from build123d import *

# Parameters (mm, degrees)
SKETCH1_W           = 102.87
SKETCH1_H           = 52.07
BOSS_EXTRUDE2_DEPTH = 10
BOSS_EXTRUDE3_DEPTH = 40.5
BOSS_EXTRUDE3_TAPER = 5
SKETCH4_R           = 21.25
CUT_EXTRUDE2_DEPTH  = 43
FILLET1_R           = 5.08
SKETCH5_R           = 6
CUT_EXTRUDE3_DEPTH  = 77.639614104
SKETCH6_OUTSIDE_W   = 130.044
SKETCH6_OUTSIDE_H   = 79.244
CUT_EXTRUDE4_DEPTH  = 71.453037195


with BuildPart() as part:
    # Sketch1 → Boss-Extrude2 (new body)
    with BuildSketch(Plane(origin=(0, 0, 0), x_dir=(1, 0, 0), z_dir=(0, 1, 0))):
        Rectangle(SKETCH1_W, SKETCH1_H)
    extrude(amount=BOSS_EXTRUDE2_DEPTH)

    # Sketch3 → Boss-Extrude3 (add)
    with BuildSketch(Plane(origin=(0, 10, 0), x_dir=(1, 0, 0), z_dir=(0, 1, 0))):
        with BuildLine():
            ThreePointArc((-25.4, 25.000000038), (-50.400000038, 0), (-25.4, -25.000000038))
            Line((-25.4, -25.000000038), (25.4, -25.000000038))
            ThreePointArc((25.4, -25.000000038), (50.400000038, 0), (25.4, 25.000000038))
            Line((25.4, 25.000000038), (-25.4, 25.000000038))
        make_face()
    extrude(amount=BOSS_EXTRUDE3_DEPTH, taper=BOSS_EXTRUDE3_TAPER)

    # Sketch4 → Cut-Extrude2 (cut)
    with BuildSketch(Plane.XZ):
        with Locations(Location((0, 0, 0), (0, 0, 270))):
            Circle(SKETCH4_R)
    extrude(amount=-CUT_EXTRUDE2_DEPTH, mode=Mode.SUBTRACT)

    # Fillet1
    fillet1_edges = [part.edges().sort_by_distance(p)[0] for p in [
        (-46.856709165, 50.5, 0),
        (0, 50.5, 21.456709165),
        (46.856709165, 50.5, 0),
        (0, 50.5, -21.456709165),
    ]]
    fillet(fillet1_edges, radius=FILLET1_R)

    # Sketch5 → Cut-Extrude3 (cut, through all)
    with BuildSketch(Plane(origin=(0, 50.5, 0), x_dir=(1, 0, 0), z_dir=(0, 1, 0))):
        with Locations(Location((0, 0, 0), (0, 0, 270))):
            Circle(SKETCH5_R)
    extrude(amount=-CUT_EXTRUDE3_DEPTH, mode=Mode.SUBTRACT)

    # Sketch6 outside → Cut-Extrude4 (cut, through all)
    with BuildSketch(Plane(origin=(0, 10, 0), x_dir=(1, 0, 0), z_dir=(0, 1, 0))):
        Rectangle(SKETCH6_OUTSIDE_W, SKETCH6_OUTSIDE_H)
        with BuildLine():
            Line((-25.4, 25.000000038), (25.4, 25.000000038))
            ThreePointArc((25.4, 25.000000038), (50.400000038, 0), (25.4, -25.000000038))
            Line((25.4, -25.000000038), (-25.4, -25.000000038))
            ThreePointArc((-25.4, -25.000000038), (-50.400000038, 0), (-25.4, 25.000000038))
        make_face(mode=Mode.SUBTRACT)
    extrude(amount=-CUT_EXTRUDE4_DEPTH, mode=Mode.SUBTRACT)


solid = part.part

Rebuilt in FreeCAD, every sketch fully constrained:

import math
import FreeCAD as App
import Part
import Sketcher
from FreeCAD import Vector


def edges_at(feature, points):
    """Names of the edges that pass closest to the given points."""
    edges = feature.Shape.Edges
    near = lambda p: min(range(len(edges)), key=lambda i: edges[i].distToShape(Part.Vertex(*p))[0])
    return sorted({f"Edge{near(p) + 1}" for p in points})

doc = App.newDocument("Part")
body = doc.addObject("PartDesign::Body", "Body")

sketch1 = body.newObject("Sketcher::SketchObject", "Sketch")
sketch1.AttachmentSupport = (doc.getObject("XZ_Plane"), [""])
sketch1.MapMode = "FlatFace"
sketch1.addGeometry([
    Part.LineSegment(Vector(-51, -26, 0), Vector(-51, 26, 0)),
    Part.LineSegment(Vector(-51, 26, 0), Vector(51, 26, 0)),
    Part.LineSegment(Vector(51, 26, 0), Vector(51, -26, 0)),
    Part.LineSegment(Vector(51, -26, 0), Vector(-51, -26, 0)),
], False)
sketch1.addConstraint([
    Sketcher.Constraint("Coincident", 0, 2, 1, 1),
    Sketcher.Constraint("Coincident", 1, 2, 2, 1),
    Sketcher.Constraint("Coincident", 2, 2, 3, 1),
    Sketcher.Constraint("Coincident", 3, 2, 0, 1),
    Sketcher.Constraint("Vertical", 0),
    Sketcher.Constraint("Horizontal", 1),
    Sketcher.Constraint("Vertical", 2),
    Sketcher.Constraint("Horizontal", 3),
    Sketcher.Constraint("Symmetric", 0, 2, 2, 2, -1, 1),
    Sketcher.Constraint("DistanceX", 1, 1, 1, 2, 102.87),
    Sketcher.Constraint("DistanceY", 0, 1, 0, 2, 52.07),
])
pad1 = body.newObject("PartDesign::Pad", "Pad")
pad1.Profile = sketch1
pad1.Length = 10
pad1.Reversed = True

sketch2 = body.newObject("Sketcher::SketchObject", "Sketch001")
sketch2.AttachmentSupport = (doc.getObject("XZ_Plane"), [""])
sketch2.MapMode = "FlatFace"
sketch2.AttachmentOffset = App.Placement(Vector(0, 0, -10), App.Rotation())
sketch2.addGeometry([
    Part.ArcOfCircle(Part.Circle(Vector(-25, 0, 0), Vector(0, 0, 1), 25), math.radians(90), math.radians(270)),
    Part.LineSegment(Vector(-25, 25, 0), Vector(25, 25, 0)),
    Part.ArcOfCircle(Part.Circle(Vector(25, 0, 0), Vector(0, 0, 1), 25), math.radians(-90), math.radians(90)),
    Part.LineSegment(Vector(25, -25, 0), Vector(-25, -25, 0)),
], False)
sketch2.addConstraint([
    Sketcher.Constraint("Tangent", 0, 1, 1, 1),
    Sketcher.Constraint("Tangent", 1, 2, 2, 2),
    Sketcher.Constraint("Tangent", 2, 1, 3, 1),
    Sketcher.Constraint("Tangent", 3, 2, 0, 2),
    Sketcher.Constraint("Horizontal", 1),
    Sketcher.Constraint("Horizontal", 3),
    Sketcher.Constraint("Symmetric", 0, 3, 2, 3, -1, 1),
    Sketcher.Constraint("Radius", 0, 25.0),
    Sketcher.Constraint("DistanceX", 1, 1, 1, 2, 50.8),
])
pad2 = body.newObject("PartDesign::Pad", "Pad001")
pad2.Profile = sketch2
pad2.Length = 40.5
pad2.Reversed = True
pad2.TaperAngle = -5

sketch3 = body.newObject("Sketcher::SketchObject", "Sketch002")
sketch3.AttachmentSupport = (doc.getObject("XZ_Plane"), [""])
sketch3.MapMode = "FlatFace"
sketch3.addGeometry(Part.Circle(Vector(0, 0, 0), Vector(0, 0, 1), 21), False)
sketch3.addConstraint([
    Sketcher.Constraint("Coincident", 0, 3, -1, 1),
    Sketcher.Constraint("Diameter", 0, 42.5),
])
pocket1 = body.newObject("PartDesign::Pocket", "Pocket")
pocket1.Profile = sketch3
pocket1.Length = 43
doc.recompute()

fillet = body.newObject("PartDesign::Fillet", "Fillet")
fillet.Base = (pocket1, edges_at(pocket1, [
    (-46.857, 50.5, 0),
    (0, 50.5, 21.457),
    (46.857, 50.5, 0),
    (0, 50.5, -21.457),
]))
fillet.Radius = 5.08

sketch4 = body.newObject("Sketcher::SketchObject", "Sketch003")
sketch4.AttachmentSupport = (doc.getObject("XZ_Plane"), [""])
sketch4.MapMode = "FlatFace"
sketch4.AttachmentOffset = App.Placement(Vector(0, 0, -50.5), App.Rotation())
sketch4.addGeometry(Part.Circle(Vector(0, 0, 0), Vector(0, 0, 1), 6), False)
sketch4.addConstraint([
    Sketcher.Constraint("Coincident", 0, 3, -1, 1),
    Sketcher.Constraint("Diameter", 0, 12.0),
])
pocket2 = body.newObject("PartDesign::Pocket", "Pocket001")
pocket2.Profile = sketch4
pocket2.Type = "ThroughAll"
pocket2.Reversed = True

sketch5 = body.newObject("Sketcher::SketchObject", "Sketch004")
sketch5.AttachmentSupport = (doc.getObject("XZ_Plane"), [""])
sketch5.MapMode = "FlatFace"
sketch5.AttachmentOffset = App.Placement(Vector(0, 0, -10), App.Rotation())
sketch5.addGeometry([
    Part.LineSegment(Vector(-65, -40, 0), Vector(-65, 40, 0)),
    Part.LineSegment(Vector(-65, 40, 0), Vector(65, 40, 0)),
    Part.LineSegment(Vector(65, 40, 0), Vector(65, -40, 0)),
    Part.LineSegment(Vector(65, -40, 0), Vector(-65, -40, 0)),
    Part.ArcOfCircle(Part.Circle(Vector(-25, 0, 0), Vector(0, 0, 1), 25), math.radians(90), math.radians(270)),
    Part.LineSegment(Vector(-25, -25, 0), Vector(25, -25, 0)),
    Part.ArcOfCircle(Part.Circle(Vector(25, 0, 0), Vector(0, 0, 1), 25), math.radians(-90), math.radians(90)),
    Part.LineSegment(Vector(25, 25, 0), Vector(-25, 25, 0)),
], False)
sketch5.addConstraint([
    Sketcher.Constraint("Coincident", 0, 2, 1, 1),
    Sketcher.Constraint("Coincident", 1, 2, 2, 1),
    Sketcher.Constraint("Coincident", 2, 2, 3, 1),
    Sketcher.Constraint("Coincident", 3, 2, 0, 1),
    Sketcher.Constraint("Tangent", 4, 2, 5, 1),
    Sketcher.Constraint("Tangent", 5, 2, 6, 1),
    Sketcher.Constraint("Tangent", 6, 2, 7, 1),
    Sketcher.Constraint("Tangent", 7, 2, 4, 1),
    Sketcher.Constraint("Vertical", 0),
    Sketcher.Constraint("Horizontal", 1),
    Sketcher.Constraint("Vertical", 2),
    Sketcher.Constraint("Horizontal", 3),
    Sketcher.Constraint("Horizontal", 5),
    Sketcher.Constraint("Horizontal", 7),
    Sketcher.Constraint("Symmetric", 4, 3, 6, 3, -1, 1),
    Sketcher.Constraint("Symmetric", 0, 2, 2, 2, -1, 1),
    Sketcher.Constraint("Radius", 4, 25.0),
    Sketcher.Constraint("DistanceX", 5, 1, 5, 2, 50.8),
    Sketcher.Constraint("DistanceX", 1, 1, 1, 2, 130.044),
    Sketcher.Constraint("DistanceY", 0, 1, 0, 2, 79.244),
])
pocket3 = body.newObject("PartDesign::Pocket", "Pocket002")
pocket3.Profile = sketch5
pocket3.Type = "ThroughAll"
pocket3.Reversed = True

doc.recompute()
